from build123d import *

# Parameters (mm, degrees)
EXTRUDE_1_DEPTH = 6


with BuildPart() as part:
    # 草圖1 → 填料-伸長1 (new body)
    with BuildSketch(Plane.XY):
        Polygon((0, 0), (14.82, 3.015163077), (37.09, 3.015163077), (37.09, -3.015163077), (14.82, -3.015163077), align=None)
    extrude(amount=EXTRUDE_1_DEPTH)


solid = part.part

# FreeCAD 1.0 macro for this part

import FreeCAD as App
import Part
import Sketcher
from FreeCAD import Vector
Q = App.Units.Quantity

doc = App.newDocument("Part")
body = doc.addObject("PartDesign::Body", "Body")

sketch1 = body.newObject("Sketcher::SketchObject", "Sketch")
sketch1.AttachmentSupport = (doc.getObject("XY_Plane"), [""])
sketch1.MapMode = "FlatFace"
sketch1.addGeometry(Part.LineSegment(Vector(14.82, 3.015163, 0), Vector(0, 0, 0)), False)
sketch1.addGeometry(Part.LineSegment(Vector(0, 0, 0), Vector(14.82, -3.015163, 0)), False)
sketch1.addGeometry(Part.LineSegment(Vector(14.82, -3.015163, 0), Vector(37.09, -3.015163, 0)), False)
sketch1.addGeometry(Part.LineSegment(Vector(37.09, -3.015163, 0), Vector(37.09, 3.015163, 0)), False)
sketch1.addGeometry(Part.LineSegment(Vector(37.09, 3.015163, 0), Vector(14.82, 3.015163, 0)), False)
sketch1.addConstraint(Sketcher.Constraint("Coincident", 0, 2, 1, 1))
sketch1.addConstraint(Sketcher.Constraint("Coincident", 1, 2, 2, 1))
sketch1.addConstraint(Sketcher.Constraint("Coincident", 2, 2, 3, 1))
sketch1.addConstraint(Sketcher.Constraint("Coincident", 3, 2, 4, 1))
sketch1.addConstraint(Sketcher.Constraint("Coincident", 4, 2, 0, 1))
sketch1.addConstraint(Sketcher.Constraint("Horizontal", 2))
sketch1.addConstraint(Sketcher.Constraint("Vertical", 3))
sketch1.addConstraint(Sketcher.Constraint("Horizontal", 4))
sketch1.addConstraint(Sketcher.Constraint("Coincident", 0, 2, -1, 1))
sketch1.addConstraint(Sketcher.Constraint("Symmetric", 1, 2, 4, 2, -1))
sketch1.addConstraint(Sketcher.Constraint("Angle", 0, Q("-168.5 deg")))
sketch1.addConstraint(Sketcher.Constraint("DistanceX", 2, 1, 2, 2, Q("22.27 mm")))
sketch1.addConstraint(Sketcher.Constraint("DistanceX", -1, 1, 1, 2, Q("14.82 mm")))
pad1 = body.newObject("PartDesign::Pad", "Pad")
pad1.Profile = sketch1
pad1.Length = 6

doc.recompute()
